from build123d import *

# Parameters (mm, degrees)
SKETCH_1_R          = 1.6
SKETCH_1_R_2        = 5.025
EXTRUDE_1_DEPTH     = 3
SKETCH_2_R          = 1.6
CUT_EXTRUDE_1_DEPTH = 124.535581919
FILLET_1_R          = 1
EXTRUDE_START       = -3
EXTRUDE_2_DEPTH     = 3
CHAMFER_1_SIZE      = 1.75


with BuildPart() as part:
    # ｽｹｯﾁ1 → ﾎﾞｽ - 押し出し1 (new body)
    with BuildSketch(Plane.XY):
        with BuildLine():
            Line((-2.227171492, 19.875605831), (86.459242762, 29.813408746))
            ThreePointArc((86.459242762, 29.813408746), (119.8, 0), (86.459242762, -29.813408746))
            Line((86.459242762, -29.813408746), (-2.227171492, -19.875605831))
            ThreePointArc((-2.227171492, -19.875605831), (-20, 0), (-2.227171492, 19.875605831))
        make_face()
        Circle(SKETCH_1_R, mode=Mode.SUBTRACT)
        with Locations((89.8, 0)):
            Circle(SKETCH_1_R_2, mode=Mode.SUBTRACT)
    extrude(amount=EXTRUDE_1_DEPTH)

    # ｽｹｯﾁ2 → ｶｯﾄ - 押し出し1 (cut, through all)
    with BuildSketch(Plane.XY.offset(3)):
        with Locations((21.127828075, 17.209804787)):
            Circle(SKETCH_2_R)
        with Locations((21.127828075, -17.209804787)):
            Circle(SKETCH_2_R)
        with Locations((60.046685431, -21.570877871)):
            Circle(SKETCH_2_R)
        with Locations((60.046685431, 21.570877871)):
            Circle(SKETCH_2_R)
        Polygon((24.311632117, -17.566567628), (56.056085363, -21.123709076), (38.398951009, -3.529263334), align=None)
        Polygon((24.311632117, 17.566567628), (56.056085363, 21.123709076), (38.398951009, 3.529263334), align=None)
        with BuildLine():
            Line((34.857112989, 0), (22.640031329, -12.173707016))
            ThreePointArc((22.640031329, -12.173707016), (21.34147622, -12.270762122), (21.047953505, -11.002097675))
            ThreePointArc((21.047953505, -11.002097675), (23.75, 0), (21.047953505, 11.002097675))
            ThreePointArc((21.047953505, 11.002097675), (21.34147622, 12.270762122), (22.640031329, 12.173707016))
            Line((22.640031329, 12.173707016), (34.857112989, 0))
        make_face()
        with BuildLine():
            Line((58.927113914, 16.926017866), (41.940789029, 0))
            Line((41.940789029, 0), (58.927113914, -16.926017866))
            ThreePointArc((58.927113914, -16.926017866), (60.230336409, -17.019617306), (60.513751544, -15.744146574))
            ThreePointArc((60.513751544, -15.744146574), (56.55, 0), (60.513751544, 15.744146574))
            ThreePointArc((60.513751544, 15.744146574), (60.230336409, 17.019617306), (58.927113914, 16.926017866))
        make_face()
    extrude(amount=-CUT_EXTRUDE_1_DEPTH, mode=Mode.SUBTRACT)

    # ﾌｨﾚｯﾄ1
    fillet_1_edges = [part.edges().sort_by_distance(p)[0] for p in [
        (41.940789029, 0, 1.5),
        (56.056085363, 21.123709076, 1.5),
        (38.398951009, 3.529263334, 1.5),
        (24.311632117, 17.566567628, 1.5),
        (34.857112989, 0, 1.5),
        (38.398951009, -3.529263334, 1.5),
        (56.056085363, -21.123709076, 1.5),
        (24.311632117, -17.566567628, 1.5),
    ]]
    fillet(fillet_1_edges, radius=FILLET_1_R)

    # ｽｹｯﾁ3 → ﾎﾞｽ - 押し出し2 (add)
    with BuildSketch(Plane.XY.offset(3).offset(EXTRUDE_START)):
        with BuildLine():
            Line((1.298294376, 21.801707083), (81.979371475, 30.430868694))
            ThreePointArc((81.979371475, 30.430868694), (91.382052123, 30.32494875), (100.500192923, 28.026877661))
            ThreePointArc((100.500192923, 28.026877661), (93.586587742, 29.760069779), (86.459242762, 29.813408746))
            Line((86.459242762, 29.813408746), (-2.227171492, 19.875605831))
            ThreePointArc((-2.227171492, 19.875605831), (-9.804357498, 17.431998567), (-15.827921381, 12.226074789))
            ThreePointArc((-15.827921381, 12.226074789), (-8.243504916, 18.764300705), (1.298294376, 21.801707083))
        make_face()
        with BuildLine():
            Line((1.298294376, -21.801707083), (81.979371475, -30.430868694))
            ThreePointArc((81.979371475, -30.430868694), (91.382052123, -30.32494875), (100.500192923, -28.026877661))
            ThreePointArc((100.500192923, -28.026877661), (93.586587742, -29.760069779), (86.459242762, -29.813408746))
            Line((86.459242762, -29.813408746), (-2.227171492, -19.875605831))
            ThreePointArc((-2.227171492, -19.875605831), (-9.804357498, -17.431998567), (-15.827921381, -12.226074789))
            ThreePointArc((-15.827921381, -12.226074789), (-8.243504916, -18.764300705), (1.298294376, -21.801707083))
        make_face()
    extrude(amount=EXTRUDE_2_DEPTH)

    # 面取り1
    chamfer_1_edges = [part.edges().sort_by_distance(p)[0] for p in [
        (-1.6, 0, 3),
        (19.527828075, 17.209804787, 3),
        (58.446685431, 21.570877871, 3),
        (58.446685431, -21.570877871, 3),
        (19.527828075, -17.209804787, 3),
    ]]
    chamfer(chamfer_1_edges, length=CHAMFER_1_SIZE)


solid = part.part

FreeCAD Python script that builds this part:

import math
import FreeCAD as App
import Part
import Sketcher
from FreeCAD import Vector


def edges_at(feature, points):
    """Names of the edges that pass closest to the given points."""
    edges = feature.Shape.Edges
    near = lambda p: min(range(len(edges)), key=lambda i: edges[i].distToShape(Part.Vertex(*p))[0])
    return sorted({f"Edge{near(p) + 1}" for p in points})

doc = App.newDocument("Part")
body = doc.addObject("PartDesign::Body", "Body")

# Sketch on XY plane
sketch1 = doc.addObject("Sketcher::SketchObject", "Sketch")
body.addObject(sketch1)
sketch1.AttachmentSupport = (doc.XY_Plane, [""])
sketch1.MapMode = "FlatFace"
sketch1.addGeometry([
    Part.LineSegment(Vector(86.5, 29.8, 0), Vector(-2.2, 19.9, 0)),  # 0
    Part.ArcOfCircle(Part.Circle(Vector(0, 0, 0), Vector(0, 0, 1), 20), math.radians(96), math.radians(264)),  # 1
    Part.LineSegment(Vector(-2.2, -19.9, 0), Vector(86.5, -29.8, 0)),  # 2
    Part.ArcOfCircle(Part.Circle(Vector(89.8, 0, 0), Vector(0, 0, 1), 30), math.radians(-96), math.radians(96)),  # 3
    Part.Circle(Vector(89.8, 0, 0), Vector(0, 0, 1), 5),  # 4
    Part.Circle(Vector(0, 0, 0), Vector(0, 0, 1), 1.6),  # 5
], False)
sketch1.addConstraint([
    Sketcher.Constraint("Tangent", 0, 2, 1, 1),
    Sketcher.Constraint("Tangent", 1, 2, 2, 1),
    Sketcher.Constraint("Tangent", 2, 2, 3, 1),
    Sketcher.Constraint("Tangent", 3, 2, 0, 1),
    Sketcher.Constraint("Coincident", 1, 3, -1, 1),
    Sketcher.Constraint("Coincident", 5, 3, -1, 1),
    Sketcher.Constraint("Coincident", 4, 3, 3, 3),
    Sketcher.Constraint("PointOnObject", 3, 3, -1),
    Sketcher.Constraint("Radius", 1, 20.0),
    Sketcher.Constraint("Radius", 3, 30.0),
    Sketcher.Constraint("Diameter", 5, 3.2),
    Sketcher.Constraint("Diameter", 4, 10.05),
    Sketcher.Constraint("DistanceX", -1, 1, 3, 3, 89.8),
])
pad1 = doc.addObject("PartDesign::Pad", "Pad")
body.addObject(pad1)
pad1.Profile = sketch1
pad1.Length = 3

# Sketch on XY plane
sketch2 = doc.addObject("Sketcher::SketchObject", "Sketch001")
body.addObject(sketch2)
sketch2.AttachmentSupport = (doc.XY_Plane, [""])
sketch2.MapMode = "FlatFace"
sketch2.AttachmentOffset = App.Placement(Vector(0, 0, 3), App.Rotation())
sketch2.addGeometry([
    Part.Circle(Vector(21.1, 17.2, 0), Vector(0, 0, 1), 1.6),  # 0
    Part.Circle(Vector(21.1, -17.2, 0), Vector(0, 0, 1), 1.6),  # 1
    Part.Circle(Vector(60, -21.6, 0), Vector(0, 0, 1), 1.6),  # 2
    Part.Circle(Vector(60, 21.6, 0), Vector(0, 0, 1), 1.6),  # 3
    Part.LineSegment(Vector(24.3, -17.6, 0), Vector(56.1, -21.1, 0)),  # 4
    Part.LineSegment(Vector(56.1, -21.1, 0), Vector(38.4, -3.5, 0)),  # 5
    Part.LineSegment(Vector(38.4, -3.5, 0), Vector(24.3, -17.6, 0)),  # 6
    Part.LineSegment(Vector(56.1, 21.1, 0), Vector(24.3, 17.6, 0)),  # 7
    Part.LineSegment(Vector(24.3, 17.6, 0), Vector(38.4, 3.5, 0)),  # 8
    Part.LineSegment(Vector(38.4, 3.5, 0), Vector(56.1, 21.1, 0)),  # 9
    Part.LineSegment(Vector(22.6, -12.2, 0), Vector(34.9, 0, 0)),  # 10
    Part.LineSegment(Vector(34.9, 0, 0), Vector(22.6, 12.2, 0)),  # 11
    Part.ArcOfCircle(Part.Circle(Vector(21.9, 11.5, 0), Vector(0, 0, 1), 1), math.radians(45), math.radians(208)),  # 12
    Part.ArcOfCircle(Part.Circle(Vector(0, 0, 0), Vector(0, 0, 1), 23.8), math.radians(-28), math.radians(28)),  # 13
    Part.ArcOfCircle(Part.Circle(Vector(21.9, -11.5, 0), Vector(0, 0, 1), 1), math.radians(152), math.radians(315)),  # 14
    Part.LineSegment(Vector(58.9, 16.9, 0), Vector(41.9, 0, 0)),  # 15
    Part.LineSegment(Vector(41.9, 0, 0), Vector(58.9, -16.9, 0)),  # 16
    Part.ArcOfCircle(Part.Circle(Vector(59.6, -16.2, 0), Vector(0, 0, 1), 1), math.radians(-135), math.radians(28)),  # 17
    Part.ArcOfCircle(Part.Circle(Vector(89.8, 0, 0), Vector(0, 0, 1), 33.2), math.radians(152), math.radians(208)),  # 18
    Part.ArcOfCircle(Part.Circle(Vector(59.6, 16.2, 0), Vector(0, 0, 1), 1), math.radians(-28), math.radians(135)),  # 19
], False)
sketch2.addConstraint([
    Sketcher.Constraint("Coincident", 4, 2, 5, 1),
    Sketcher.Constraint("Coincident", 5, 2, 6, 1),
    Sketcher.Constraint("Coincident", 6, 2, 4, 1),
    Sketcher.Constraint("Coincident", 7, 2, 8, 1),
    Sketcher.Constraint("Coincident", 8, 2, 9, 1),
    Sketcher.Constraint("Coincident", 9, 2, 7, 1),
    Sketcher.Constraint("Coincident", 10, 2, 11, 1),
    Sketcher.Constraint("Tangent", 11, 2, 12, 1),
    Sketcher.Constraint("Tangent", 12, 2, 13, 2),
    Sketcher.Constraint("Tangent", 13, 1, 14, 1),
    Sketcher.Constraint("Tangent", 14, 2, 10, 1),
    Sketcher.Constraint("Coincident", 15, 2, 16, 1),
    Sketcher.Constraint("Tangent", 16, 2, 17, 1),
    Sketcher.Constraint("Tangent", 17, 2, 18, 2),
    Sketcher.Constraint("Tangent", 18, 1, 19, 1),
    Sketcher.Constraint("Tangent", 19, 2, 15, 1),
    Sketcher.Constraint("Coincident", 13, 3, -1, 1),
    Sketcher.Constraint("Equal", 0, 1),
    Sketcher.Constraint("Equal", 1, 2),
    Sketcher.Constraint("Equal", 2, 3),
    Sketcher.Constraint("Equal", 12, 14),
    Sketcher.Constraint("Equal", 14, 17),
    Sketcher.Constraint("Equal", 17, 19),
    Sketcher.Constraint("Symmetric", 0, 3, 1, 3, -1),
    Sketcher.Constraint("Symmetric", 2, 3, 3, 3, -1),
    Sketcher.Constraint("Symmetric", 17, 3, 19, 3, -1),
    Sketcher.Constraint("Symmetric", 6, 2, 7, 2, -1),
    Sketcher.Constraint("Symmetric", 5, 2, 8, 2, -1),
    Sketcher.Constraint("Symmetric", 4, 2, 9, 2, -1),
    Sketcher.Constraint("Symmetric", 11, 2, 14, 2, -1),
    Sketcher.Constraint("PointOnObject", 15, 2, -1),
    Sketcher.Constraint("Parallel", 5, 8),
    Sketcher.Constraint("Parallel", 9, 10),
    Sketcher.Constraint("Parallel", 10, 15),
    Sketcher.Constraint("Radius", 12, 1.0),
    Sketcher.Constraint("Diameter", 0, 3.2),
    Sketcher.Constraint("Radius", 13, 23.75),
    Sketcher.Constraint("Radius", 18, 33.25),
    Sketcher.Constraint("DistanceX", -1, 1, 18, 3, 89.8),
    Sketcher.Constraint("DistanceY", 17, 3, 12, 3, 27.682999),
    Sketcher.Constraint("DistanceX", 4, 2, 2, 3, 3.9906),
    Sketcher.Constraint("DistanceX", 11, 2, 7, 2, 1.671601),
    Sketcher.Constraint("DistanceX", 8, 2, 18, 1, 22.114801),
    Sketcher.Constraint("Distance", 4, 31.94313),
    Sketcher.Constraint("Distance", 5, 24.926671),
    Sketcher.Constraint("Distance", 10, 17.246919),
    Sketcher.Constraint("DistanceX", -1, 1, 0, 3, 21.127828),
    Sketcher.Constraint("DistanceY", 4, 2, -1, 1, 21.123709),
    Sketcher.Constraint("DistanceY", 1, 3, 0, 3, 34.41961),
    Sketcher.Constraint("DistanceY", 2, 3, 12, 3, 33.036222),
])
pocket1 = doc.addObject("PartDesign::Pocket", "Pocket")
body.addObject(pocket1)
pocket1.Profile = sketch2
pocket1.Type = "ThroughAll"
doc.recompute()

fillet = doc.addObject("PartDesign::Fillet", "Fillet")
body.addObject(fillet)
fillet.Base = (pocket1, edges_at(pocket1, [
    (41.941, 0, 1.5),
    (56.056, 21.124, 1.5),
    (38.399, 3.529, 1.5),
    (24.312, 17.567, 1.5),
    (34.857, 0, 1.5),
    (38.399, -3.529, 1.5),
    (56.056, -21.124, 1.5),
    (24.312, -17.567, 1.5),
]))
fillet.Radius = 1

# Sketch on XY plane
sketch3 = doc.addObject("Sketcher::SketchObject", "Sketch002")
body.addObject(sketch3)
sketch3.AttachmentSupport = (doc.XY_Plane, [""])
sketch3.MapMode = "FlatFace"
sketch3.addGeometry([
    Part.LineSegment(Vector(81.979371, 30.430869, 0), Vector(1.298294, 21.801707, 0)),  # 0
    Part.ArcOfCircle(Part.Circle(Vector(3.95698, -3.056519, 0), Vector(0, 0, 1), 25), math.radians(96.104804), math.radians(142.316168)),  # 1
    Part.ArcOfCircle(Part.Circle(Vector(0, 0, 0), Vector(0, 0, 1), 20), math.radians(96.393637), math.radians(142.316168)),  # 2
    Part.LineSegment(Vector(-2.227171, 19.875606, 0), Vector(86.459243, 29.813409, 0)),  # 3
    Part.ArcOfCircle(Part.Circle(Vector(89.8, 0, 0), Vector(0, 0, 1), 30), math.radians(69.10398), math.radians(96.393637)),  # 4
    Part.ArcOfCircle(Part.Circle(Vector(86.233269, -9.342293, 0), Vector(0, 0, 1), 40), math.radians(69.10398), math.radians(96.104804)),  # 5
    Part.LineSegment(Vector(1.298294, -21.801707, 0), Vector(81.979371, -30.430869, 0)),  # 6
    Part.ArcOfCircle(Part.Circle(Vector(86.233269, 9.342293, 0), Vector(0, 0, 1), 40), math.radians(-96.104804), math.radians(-69.10398)),  # 7
    Part.ArcOfCircle(Part.Circle(Vector(89.8, 0, 0), Vector(0, 0, 1), 30), math.radians(-96.393637), math.radians(-69.10398)),  # 8
    Part.LineSegment(Vector(86.459243, -29.813409, 0), Vector(-2.227171, -19.875606, 0)),  # 9
    Part.ArcOfCircle(Part.Circle(Vector(0, 0, 0), Vector(0, 0, 1), 20), math.radians(-142.316168), math.radians(-96.393637)),  # 10
    Part.ArcOfCircle(Part.Circle(Vector(3.95698, 3.056519, 0), Vector(0, 0, 1), 25), math.radians(-142.316168), math.radians(-96.104804)),  # 11
], False)
sketch3.addConstraint([
    Sketcher.Constraint("Coincident", 0, 2, 1, 1),
    Sketcher.Constraint("Coincident", 1, 2, 2, 2),
    Sketcher.Constraint("Coincident", 2, 1, 3, 1),
    Sketcher.Constraint("Coincident", 3, 2, 4, 2),
    Sketcher.Constraint("Coincident", 4, 1, 5, 1),
    Sketcher.Constraint("Coincident", 5, 2, 0, 1),
    Sketcher.Constraint("Coincident", 6, 2, 7, 1),
    Sketcher.Constraint("Coincident", 7, 2, 8, 2),
    Sketcher.Constraint("Coincident", 8, 1, 9, 1),
    Sketcher.Constraint("Coincident", 9, 2, 10, 2),
    Sketcher.Constraint("Coincident", 10, 1, 11, 1),
    Sketcher.Constraint("Coincident", 11, 2, 6, 1),
    Sketcher.Constraint("Coincident", 2, 3, -1, 1),
    Sketcher.Constraint("Coincident", 10, 3, -1, 1),
    Sketcher.Constraint("Coincident", 8, 3, 4, 3),
    Sketcher.Constraint("PointOnObject", 4, 3, -1),
    Sketcher.Constraint("Radius", 1, 25.0),
    Sketcher.Constraint("Radius", 2, 20.0),
    Sketcher.Constraint("Radius", 4, 30.0),
    Sketcher.Constraint("Radius", 5, 40.0),
    Sketcher.Constraint("Radius", 7, 40.0),
    Sketcher.Constraint("Radius", 8, 30.0),
    Sketcher.Constraint("Radius", 10, 20.0),
    Sketcher.Constraint("Radius", 11, 25.0),
    Sketcher.Constraint("DistanceX", -1, 1, 4, 3, 89.8),
    Sketcher.Constraint("DistanceX", 1, 2, 11, 3, 19.784902),
    Sketcher.Constraint("DistanceX", 1, 2, 1, 3, 19.784902),
    Sketcher.Constraint("DistanceY", 2, 1, 0, 2, 1.926101),
    Sketcher.Constraint("DistanceY", 5, 3, 3, 2, 39.155701),
    Sketcher.Constraint("DistanceY", 0, 2, 3, 2, 8.011702),
    Sketcher.Constraint("DistanceX", 10, 1, 1, 3, 19.784902),
    Sketcher.Constraint("DistanceY", 11, 2, 9, 2, 1.926101),
    Sketcher.Constraint("Distance", 9, 89.24147),
    Sketcher.Constraint("DistanceX", -1, 1, 1, 3, 3.95698),
    Sketcher.Constraint("DistanceX", -1, 1, 5, 3, 86.233269),
    Sketcher.Constraint("DistanceX", -1, 1, 7, 3, 86.233269),
    Sketcher.Constraint("DistanceX", -1, 1, 5, 2, 81.979371),
    Sketcher.Constraint("DistanceX", -1, 1, 6, 2, 81.979371),
    Sketcher.Constraint("DistanceY", 8, 1, -1, 1, 29.813409),
    Sketcher.Constraint("DistanceX", 3, 2, 4, 1, 14.04095),
    Sketcher.Constraint("DistanceX", 6, 2, 7, 2, 18.520821),
])
pad2 = doc.addObject("PartDesign::Pad", "Pad001")
body.addObject(pad2)
pad2.Profile = sketch3
pad2.Length = 3
doc.recompute()

chamfer = doc.addObject("PartDesign::Chamfer", "Chamfer")
body.addObject(chamfer)
chamfer.Base = (pad2, edges_at(pad2, [
    (-1.6, 0, 3),
    (19.528, 17.21, 3),
    (58.447, 21.571, 3),
    (58.447, -21.571, 3),
    (19.528, -17.21, 3),
]))
chamfer.Size = 1.75

doc.recompute()
